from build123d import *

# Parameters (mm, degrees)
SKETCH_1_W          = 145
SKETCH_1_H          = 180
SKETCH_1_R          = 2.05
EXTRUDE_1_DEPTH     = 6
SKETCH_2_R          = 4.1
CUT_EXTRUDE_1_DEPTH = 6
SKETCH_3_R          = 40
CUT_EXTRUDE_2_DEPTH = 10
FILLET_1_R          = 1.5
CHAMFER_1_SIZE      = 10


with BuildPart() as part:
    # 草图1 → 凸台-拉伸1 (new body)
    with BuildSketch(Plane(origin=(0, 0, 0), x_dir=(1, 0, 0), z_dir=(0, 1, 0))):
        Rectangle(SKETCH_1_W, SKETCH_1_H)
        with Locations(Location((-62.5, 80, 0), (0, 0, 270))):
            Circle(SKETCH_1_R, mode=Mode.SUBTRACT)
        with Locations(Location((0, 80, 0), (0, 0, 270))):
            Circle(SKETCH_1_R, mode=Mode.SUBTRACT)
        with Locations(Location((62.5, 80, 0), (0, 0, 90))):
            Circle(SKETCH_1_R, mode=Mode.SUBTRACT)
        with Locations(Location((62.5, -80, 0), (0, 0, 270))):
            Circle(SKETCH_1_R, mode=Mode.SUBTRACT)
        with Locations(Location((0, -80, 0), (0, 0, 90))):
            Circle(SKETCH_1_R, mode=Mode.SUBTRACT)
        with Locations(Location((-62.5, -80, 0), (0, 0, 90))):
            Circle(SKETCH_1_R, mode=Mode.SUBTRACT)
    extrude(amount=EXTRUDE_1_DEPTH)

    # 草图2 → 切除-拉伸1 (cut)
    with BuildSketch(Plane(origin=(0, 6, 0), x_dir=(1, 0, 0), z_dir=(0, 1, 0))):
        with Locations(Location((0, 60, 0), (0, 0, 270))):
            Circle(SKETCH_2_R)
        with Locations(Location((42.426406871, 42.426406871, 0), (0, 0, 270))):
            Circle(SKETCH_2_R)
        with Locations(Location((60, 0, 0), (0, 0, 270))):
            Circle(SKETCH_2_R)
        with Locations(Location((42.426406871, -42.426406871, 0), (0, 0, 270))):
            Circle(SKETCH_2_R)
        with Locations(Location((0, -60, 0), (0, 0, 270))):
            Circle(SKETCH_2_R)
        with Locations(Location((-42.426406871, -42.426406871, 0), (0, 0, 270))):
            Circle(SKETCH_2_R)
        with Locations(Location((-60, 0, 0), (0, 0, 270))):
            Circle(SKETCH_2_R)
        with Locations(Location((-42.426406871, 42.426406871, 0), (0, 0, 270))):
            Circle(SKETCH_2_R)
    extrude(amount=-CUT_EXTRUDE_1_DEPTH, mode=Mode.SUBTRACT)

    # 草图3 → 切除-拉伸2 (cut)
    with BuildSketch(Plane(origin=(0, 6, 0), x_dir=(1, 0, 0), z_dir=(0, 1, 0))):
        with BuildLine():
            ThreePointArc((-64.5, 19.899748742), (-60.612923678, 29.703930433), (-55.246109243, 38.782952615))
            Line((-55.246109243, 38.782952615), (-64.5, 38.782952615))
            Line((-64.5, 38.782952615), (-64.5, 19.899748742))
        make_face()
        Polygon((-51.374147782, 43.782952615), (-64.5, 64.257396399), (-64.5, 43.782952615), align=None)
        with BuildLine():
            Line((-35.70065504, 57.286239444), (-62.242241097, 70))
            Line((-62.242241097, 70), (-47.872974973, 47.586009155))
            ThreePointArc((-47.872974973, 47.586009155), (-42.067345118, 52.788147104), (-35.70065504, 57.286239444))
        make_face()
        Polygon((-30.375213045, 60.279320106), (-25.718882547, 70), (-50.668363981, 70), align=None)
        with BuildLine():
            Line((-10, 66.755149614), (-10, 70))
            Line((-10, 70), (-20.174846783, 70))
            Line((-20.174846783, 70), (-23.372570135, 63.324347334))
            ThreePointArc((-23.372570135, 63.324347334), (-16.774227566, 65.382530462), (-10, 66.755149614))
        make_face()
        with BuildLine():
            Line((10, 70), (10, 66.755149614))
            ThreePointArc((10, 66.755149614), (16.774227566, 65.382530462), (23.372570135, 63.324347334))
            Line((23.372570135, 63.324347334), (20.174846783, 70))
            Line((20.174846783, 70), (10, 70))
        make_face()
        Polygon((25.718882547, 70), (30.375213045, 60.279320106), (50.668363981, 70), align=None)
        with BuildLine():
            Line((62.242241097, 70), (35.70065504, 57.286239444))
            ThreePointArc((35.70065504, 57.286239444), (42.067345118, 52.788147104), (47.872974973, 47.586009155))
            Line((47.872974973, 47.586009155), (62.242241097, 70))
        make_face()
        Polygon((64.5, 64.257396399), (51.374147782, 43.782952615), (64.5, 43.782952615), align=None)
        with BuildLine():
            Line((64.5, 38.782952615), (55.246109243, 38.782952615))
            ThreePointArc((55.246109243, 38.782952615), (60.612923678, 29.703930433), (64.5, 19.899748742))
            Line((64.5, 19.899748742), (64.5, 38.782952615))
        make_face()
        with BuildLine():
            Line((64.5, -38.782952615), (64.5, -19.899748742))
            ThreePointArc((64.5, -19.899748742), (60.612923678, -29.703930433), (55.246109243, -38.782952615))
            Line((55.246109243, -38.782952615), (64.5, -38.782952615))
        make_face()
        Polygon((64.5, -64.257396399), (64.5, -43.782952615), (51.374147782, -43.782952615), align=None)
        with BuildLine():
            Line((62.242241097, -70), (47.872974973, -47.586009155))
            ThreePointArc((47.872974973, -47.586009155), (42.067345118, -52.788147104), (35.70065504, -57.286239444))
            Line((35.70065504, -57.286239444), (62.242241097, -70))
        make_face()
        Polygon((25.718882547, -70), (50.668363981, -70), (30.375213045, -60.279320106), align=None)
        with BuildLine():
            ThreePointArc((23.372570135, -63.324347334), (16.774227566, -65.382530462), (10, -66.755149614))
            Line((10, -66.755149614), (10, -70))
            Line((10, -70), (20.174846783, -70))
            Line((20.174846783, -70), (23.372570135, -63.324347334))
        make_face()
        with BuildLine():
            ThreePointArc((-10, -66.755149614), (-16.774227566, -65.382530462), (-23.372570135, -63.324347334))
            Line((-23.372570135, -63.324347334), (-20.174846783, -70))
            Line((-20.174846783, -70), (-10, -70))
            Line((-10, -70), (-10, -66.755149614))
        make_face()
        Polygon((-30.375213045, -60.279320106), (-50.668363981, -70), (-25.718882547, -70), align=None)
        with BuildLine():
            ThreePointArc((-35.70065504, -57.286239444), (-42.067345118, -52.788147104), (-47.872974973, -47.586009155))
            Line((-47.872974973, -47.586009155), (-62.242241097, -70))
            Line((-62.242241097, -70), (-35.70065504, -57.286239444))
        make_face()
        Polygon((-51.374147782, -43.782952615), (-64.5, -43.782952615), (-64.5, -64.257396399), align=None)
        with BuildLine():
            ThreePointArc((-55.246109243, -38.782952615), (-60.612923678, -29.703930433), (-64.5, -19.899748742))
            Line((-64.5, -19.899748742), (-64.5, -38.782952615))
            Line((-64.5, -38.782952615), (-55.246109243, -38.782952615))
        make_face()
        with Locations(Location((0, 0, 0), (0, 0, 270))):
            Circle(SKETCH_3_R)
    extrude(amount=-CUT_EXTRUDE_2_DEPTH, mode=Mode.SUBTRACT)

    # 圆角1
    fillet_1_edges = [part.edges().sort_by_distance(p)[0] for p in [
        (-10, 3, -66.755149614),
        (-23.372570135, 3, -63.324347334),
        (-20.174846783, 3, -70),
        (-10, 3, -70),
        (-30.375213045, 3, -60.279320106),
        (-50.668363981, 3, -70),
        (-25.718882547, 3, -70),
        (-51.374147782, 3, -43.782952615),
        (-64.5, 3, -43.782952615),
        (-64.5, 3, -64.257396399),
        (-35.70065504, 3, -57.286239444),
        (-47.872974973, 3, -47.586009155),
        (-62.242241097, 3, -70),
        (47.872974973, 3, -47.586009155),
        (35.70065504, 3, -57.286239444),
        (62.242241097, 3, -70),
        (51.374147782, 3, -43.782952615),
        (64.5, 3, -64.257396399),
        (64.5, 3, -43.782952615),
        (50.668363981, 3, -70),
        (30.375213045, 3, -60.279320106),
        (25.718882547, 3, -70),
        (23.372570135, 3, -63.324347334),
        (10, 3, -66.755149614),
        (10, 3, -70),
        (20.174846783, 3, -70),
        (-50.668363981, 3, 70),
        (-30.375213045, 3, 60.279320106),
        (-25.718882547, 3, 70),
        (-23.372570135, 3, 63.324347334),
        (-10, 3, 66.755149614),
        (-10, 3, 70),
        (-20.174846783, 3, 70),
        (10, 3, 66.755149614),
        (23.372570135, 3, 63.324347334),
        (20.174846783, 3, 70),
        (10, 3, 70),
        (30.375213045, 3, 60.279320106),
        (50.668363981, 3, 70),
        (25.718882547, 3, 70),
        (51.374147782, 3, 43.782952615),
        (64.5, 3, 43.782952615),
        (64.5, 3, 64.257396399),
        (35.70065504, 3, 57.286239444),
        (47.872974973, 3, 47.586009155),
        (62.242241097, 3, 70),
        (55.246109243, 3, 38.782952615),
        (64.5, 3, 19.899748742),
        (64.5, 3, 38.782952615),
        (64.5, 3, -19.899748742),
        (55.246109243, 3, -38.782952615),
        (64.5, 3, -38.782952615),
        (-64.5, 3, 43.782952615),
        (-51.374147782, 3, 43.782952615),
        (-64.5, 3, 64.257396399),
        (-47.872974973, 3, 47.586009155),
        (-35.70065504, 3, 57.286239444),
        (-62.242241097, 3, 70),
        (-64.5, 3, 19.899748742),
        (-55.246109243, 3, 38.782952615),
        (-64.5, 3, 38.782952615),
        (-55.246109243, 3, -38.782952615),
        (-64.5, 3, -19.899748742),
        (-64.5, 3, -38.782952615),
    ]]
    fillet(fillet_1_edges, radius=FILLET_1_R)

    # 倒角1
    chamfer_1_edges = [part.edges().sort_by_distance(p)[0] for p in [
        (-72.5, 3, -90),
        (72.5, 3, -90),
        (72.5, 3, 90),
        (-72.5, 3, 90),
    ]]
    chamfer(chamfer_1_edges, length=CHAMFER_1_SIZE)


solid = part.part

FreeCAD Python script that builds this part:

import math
import FreeCAD as App
import Part
import Sketcher
Q = App.Units.Quantity


def edges_at(feature, points):
    """Names of the edges that pass closest to the given points."""
    edges = feature.Shape.Edges
    near = lambda p: min(range(len(edges)), key=lambda i: edges[i].distToShape(Part.Vertex(*p))[0])
    return sorted({f"Edge{near(p) + 1}" for p in points})


def add_polygon(sketch, points):
    """Adds a closed chain of lines whose ends are joined by coincident constraints."""
    first, n = sketch.GeometryCount, len(points)
    for a, b in zip(points, points[1:] + points[:1]):
        sketch.addGeometry(Part.LineSegment(App.Vector(*a, 0), App.Vector(*b, 0)), False)
    for i in range(n):
        sketch.addConstraint(Sketcher.Constraint("Coincident", first + i, 2, first + (i + 1) % n, 1))

doc = App.newDocument("Part")
body = doc.addObject("PartDesign::Body", "Body")

sketch1 = body.newObject("Sketcher::SketchObject", "Sketch")
sketch1.AttachmentSupport = (doc.getObject("XZ_Plane"), [""])
sketch1.MapMode = "FlatFace"
add_polygon(sketch1, [(-72.5, -90), (-72.5, 90), (72.5, 90), (72.5, -90)])
sketch1.addGeometry(Part.Circle(App.Vector(-62.5, 80, 0), App.Vector(0, 0, 1), 2), False)
sketch1.addGeometry(Part.Circle(App.Vector(0, 80, 0), App.Vector(0, 0, 1), 2), False)
sketch1.addGeometry(Part.Circle(App.Vector(62.5, 80, 0), App.Vector(0, 0, 1), 2), False)
sketch1.addGeometry(Part.Circle(App.Vector(-62.5, -80, 0), App.Vector(0, 0, 1), 2), False)
sketch1.addGeometry(Part.Circle(App.Vector(0, -80, 0), App.Vector(0, 0, 1), 2), False)
sketch1.addGeometry(Part.Circle(App.Vector(62.5, -80, 0), App.Vector(0, 0, 1), 2), False)
sketch1.addConstraint([
    Sketcher.Constraint("Vertical", 0),
    Sketcher.Constraint("Horizontal", 1),
    Sketcher.Constraint("Vertical", 2),
    Sketcher.Constraint("Horizontal", 3),
    Sketcher.Constraint("Equal", 4, 5),
    Sketcher.Constraint("Equal", 5, 6),
    Sketcher.Constraint("Equal", 6, 7),
    Sketcher.Constraint("Equal", 7, 8),
    Sketcher.Constraint("Equal", 8, 9),
    Sketcher.Constraint("Symmetric", 6, 3, 7, 3, -1, 1),
    Sketcher.Constraint("Symmetric", 5, 3, 8, 3, -1, 1),
    Sketcher.Constraint("Symmetric", 4, 3, 9, 3, -1, 1),
    Sketcher.Constraint("Symmetric", 0, 2, 2, 2, -1, 1),
    Sketcher.Constraint("Symmetric", 4, 3, 6, 3, -2),
    Sketcher.Constraint("PointOnObject", 5, 3, -2),
    Sketcher.Constraint("Horizontal", 4, 3, 5, 3),
    Sketcher.Constraint("Diameter", 4, Q("4.1 mm")),
    Sketcher.Constraint("DistanceX", 1, 1, 1, 2, Q("145 mm")),
    Sketcher.Constraint("DistanceY", 0, 1, 0, 2, Q("180 mm")),
    Sketcher.Constraint("DistanceY", -1, 1, 4, 3, Q("80 mm")),
    Sketcher.Constraint("DistanceX", 4, 3, 6, 3, Q("125 mm")),
])
pad1 = body.newObject("PartDesign::Pad", "Pad")
pad1.Profile = sketch1
pad1.Length = 6
pad1.Reversed = True

sketch2 = body.newObject("Sketcher::SketchObject", "Sketch001")
sketch2.AttachmentSupport = (doc.getObject("XZ_Plane"), [""])
sketch2.MapMode = "FlatFace"
sketch2.AttachmentOffset = App.Placement(App.Vector(0, 0, -6), App.Rotation())
sketch2.addGeometry([
    Part.Circle(App.Vector(0, -60, 0), App.Vector(0, 0, 1), 4.1),
    Part.Circle(App.Vector(42.4, -42.4, 0), App.Vector(0, 0, 1), 4.1),
    Part.Circle(App.Vector(60, 0, 0), App.Vector(0, 0, 1), 4.1),
    Part.Circle(App.Vector(42.4, 42.4, 0), App.Vector(0, 0, 1), 4.1),
    Part.Circle(App.Vector(0, 60, 0), App.Vector(0, 0, 1), 4.1),
    Part.Circle(App.Vector(-42.4, 42.4, 0), App.Vector(0, 0, 1), 4.1),
    Part.Circle(App.Vector(-60, 0, 0), App.Vector(0, 0, 1), 4.1),
    Part.Circle(App.Vector(-42.4, -42.4, 0), App.Vector(0, 0, 1), 4.1),
], False)
sketch2.addConstraint([
    Sketcher.Constraint("Equal", 0, 1),
    Sketcher.Constraint("Equal", 1, 2),
    Sketcher.Constraint("Equal", 2, 3),
    Sketcher.Constraint("Equal", 3, 4),
    Sketcher.Constraint("Equal", 4, 5),
    Sketcher.Constraint("Equal", 5, 6),
    Sketcher.Constraint("Equal", 6, 7),
    Sketcher.Constraint("Symmetric", 0, 3, 4, 3, -1, 1),
    Sketcher.Constraint("Symmetric", 1, 3, 5, 3, -1, 1),
    Sketcher.Constraint("Symmetric", 2, 3, 6, 3, -1, 1),
    Sketcher.Constraint("Symmetric", 3, 3, 7, 3, -1, 1),
    Sketcher.Constraint("Symmetric", 3, 3, 5, 3, -2),
    Sketcher.Constraint("PointOnObject", 0, 3, -2),
    Sketcher.Constraint("PointOnObject", 2, 3, -1),
    Sketcher.Constraint("Diameter", 0, Q("8.2 mm")),
    Sketcher.Constraint("DistanceY", 0, 3, -1, 1, Q("60 mm")),
    Sketcher.Constraint("DistanceX", -1, 1, 2, 3, Q("60 mm")),
    Sketcher.Constraint("DistanceX", -1, 1, 1, 3, Q("42.426407 mm")),
    Sketcher.Constraint("DistanceY", 1, 3, -1, 1, Q("42.426407 mm")),
])
pocket1 = body.newObject("PartDesign::Pocket", "Pocket")
pocket1.Profile = sketch2
pocket1.Length = 6
pocket1.Reversed = True

sketch3 = body.newObject("Sketcher::SketchObject", "Sketch002")
sketch3.AttachmentSupport = (doc.getObject("XZ_Plane"), [""])
sketch3.MapMode = "FlatFace"
sketch3.AttachmentOffset = App.Placement(App.Vector(0, 0, -6), App.Rotation())
sketch3.addGeometry(Part.ArcOfCircle(Part.Circle(App.Vector(0, 0, 0), App.Vector(0, 0, 1), 67.5), math.radians(-162.85), math.radians(-144.93)), False)
sketch3.addGeometry(Part.LineSegment(App.Vector(-55.2, -38.8, 0), App.Vector(-64.5, -38.8, 0)), False)
sketch3.addGeometry(Part.LineSegment(App.Vector(-64.5, -38.8, 0), App.Vector(-64.5, -19.9, 0)), False)
add_polygon(sketch3, [(-51.4, -43.8), (-64.5, -64.3), (-64.5, -43.8)])
sketch3.addGeometry(Part.LineSegment(App.Vector(-35.7, -57.3, 0), App.Vector(-62.2, -70, 0)), False)
sketch3.addGeometry(Part.LineSegment(App.Vector(-62.2, -70, 0), App.Vector(-47.9, -47.6, 0)), False)
sketch3.addGeometry(Part.ArcOfCircle(Part.Circle(App.Vector(0, 0, 0), App.Vector(0, 0, 1), 67.5), math.radians(-135.17), math.radians(-121.93)), False)
add_polygon(sketch3, [(-30.4, -60.3), (-25.7, -70), (-50.7, -70)])
sketch3.addGeometry(Part.LineSegment(App.Vector(-10, -66.8, 0), App.Vector(-10, -70, 0)), False)
sketch3.addGeometry(Part.LineSegment(App.Vector(-10, -70, 0), App.Vector(-20.2, -70, 0)), False)
sketch3.addGeometry(Part.LineSegment(App.Vector(-20.2, -70, 0), App.Vector(-23.4, -63.3, 0)), False)
sketch3.addGeometry(Part.ArcOfCircle(Part.Circle(App.Vector(0, 0, 0), App.Vector(0, 0, 1), 67.5), math.radians(-110.26), math.radians(-98.52)), False)
sketch3.addGeometry(Part.LineSegment(App.Vector(10, -70, 0), App.Vector(10, -66.8, 0)), False)
sketch3.addGeometry(Part.ArcOfCircle(Part.Circle(App.Vector(0, 0, 0), App.Vector(0, 0, 1), 67.5), math.radians(-81.48), math.radians(-69.74)), False)
sketch3.addGeometry(Part.LineSegment(App.Vector(23.4, -63.3, 0), App.Vector(20.2, -70, 0)), False)
sketch3.addGeometry(Part.LineSegment(App.Vector(20.2, -70, 0), App.Vector(10, -70, 0)), False)
add_polygon(sketch3, [(25.7, -70), (30.4, -60.3), (50.7, -70)])
sketch3.addGeometry(Part.LineSegment(App.Vector(62.2, -70, 0), App.Vector(35.7, -57.3, 0)), False)
sketch3.addGeometry(Part.ArcOfCircle(Part.Circle(App.Vector(0, 0, 0), App.Vector(0, 0, 1), 67.5), math.radians(-58.07), math.radians(-44.83)), False)
sketch3.addGeometry(Part.LineSegment(App.Vector(47.9, -47.6, 0), App.Vector(62.2, -70, 0)), False)
add_polygon(sketch3, [(64.5, -64.3), (51.4, -43.8), (64.5, -43.8)])
sketch3.addGeometry(Part.LineSegment(App.Vector(64.5, -38.8, 0), App.Vector(55.2, -38.8, 0)), False)
sketch3.addGeometry(Part.ArcOfCircle(Part.Circle(App.Vector(0, 0, 0), App.Vector(0, 0, 1), 67.5), math.radians(-35.07), math.radians(-17.15)), False)
sketch3.addGeometry(Part.LineSegment(App.Vector(64.5, -19.9, 0), App.Vector(64.5, -38.8, 0)), False)
sketch3.addGeometry(Part.LineSegment(App.Vector(64.5, 38.8, 0), App.Vector(64.5, 19.9, 0)), False)
sketch3.addGeometry(Part.ArcOfCircle(Part.Circle(App.Vector(0, 0, 0), App.Vector(0, 0, 1), 67.5), math.radians(17.15), math.radians(35.07)), False)
sketch3.addGeometry(Part.LineSegment(App.Vector(55.2, 38.8, 0), App.Vector(64.5, 38.8, 0)), False)
add_polygon(sketch3, [(64.5, 64.3), (64.5, 43.8), (51.4, 43.8)])
sketch3.addGeometry(Part.LineSegment(App.Vector(62.2, 70, 0), App.Vector(47.9, 47.6, 0)), False)
sketch3.addGeometry(Part.ArcOfCircle(Part.Circle(App.Vector(0, 0, 0), App.Vector(0, 0, 1), 67.5), math.radians(44.83), math.radians(58.07)), False)
sketch3.addGeometry(Part.LineSegment(App.Vector(35.7, 57.3, 0), App.Vector(62.2, 70, 0)), False)
add_polygon(sketch3, [(25.7, 70), (50.7, 70), (30.4, 60.3)])
sketch3.addGeometry(Part.ArcOfCircle(Part.Circle(App.Vector(0, 0, 0), App.Vector(0, 0, 1), 67.5), math.radians(69.74), math.radians(81.48)), False)
sketch3.addGeometry(Part.LineSegment(App.Vector(10, 66.8, 0), App.Vector(10, 70, 0)), False)
sketch3.addGeometry(Part.LineSegment(App.Vector(10, 70, 0), App.Vector(20.2, 70, 0)), False)
sketch3.addGeometry(Part.LineSegment(App.Vector(20.2, 70, 0), App.Vector(23.4, 63.3, 0)), False)
sketch3.addGeometry(Part.ArcOfCircle(Part.Circle(App.Vector(0, 0, 0), App.Vector(0, 0, 1), 67.5), math.radians(98.52), math.radians(110.26)), False)
sketch3.addGeometry(Part.LineSegment(App.Vector(-23.4, 63.3, 0), App.Vector(-20.2, 70, 0)), False)
sketch3.addGeometry(Part.LineSegment(App.Vector(-20.2, 70, 0), App.Vector(-10, 70, 0)), False)
sketch3.addGeometry(Part.LineSegment(App.Vector(-10, 70, 0), App.Vector(-10, 66.8, 0)), False)
add_polygon(sketch3, [(-30.4, 60.3), (-50.7, 70), (-25.7, 70)])
sketch3.addGeometry(Part.ArcOfCircle(Part.Circle(App.Vector(0, 0, 0), App.Vector(0, 0, 1), 67.5), math.radians(121.93), math.radians(135.17)), False)
sketch3.addGeometry(Part.LineSegment(App.Vector(-47.9, 47.6, 0), App.Vector(-62.2, 70, 0)), False)
sketch3.addGeometry(Part.LineSegment(App.Vector(-62.2, 70, 0), App.Vector(-35.7, 57.3, 0)), False)
add_polygon(sketch3, [(-51.4, 43.8), (-64.5, 43.8), (-64.5, 64.3)])
sketch3.addGeometry(Part.ArcOfCircle(Part.Circle(App.Vector(0, 0, 0), App.Vector(0, 0, 1), 67.5), math.radians(144.93), math.radians(162.85)), False)
sketch3.addGeometry(Part.LineSegment(App.Vector(-64.5, 19.9, 0), App.Vector(-64.5, 38.8, 0)), False)
sketch3.addGeometry(Part.LineSegment(App.Vector(-64.5, 38.8, 0), App.Vector(-55.2, 38.8, 0)), False)
sketch3.addGeometry(Part.Circle(App.Vector(0, 0, 0), App.Vector(0, 0, 1), 40), False)
sketch3.addConstraint([
    Sketcher.Constraint("Coincident", 0, 2, 1, 1),
    Sketcher.Constraint("Coincident", 1, 2, 2, 1),
    Sketcher.Constraint("Coincident", 2, 2, 0, 1),
    Sketcher.Constraint("Coincident", 6, 2, 7, 1),
    Sketcher.Constraint("Coincident", 7, 2, 8, 1),
    Sketcher.Constraint("Coincident", 8, 2, 6, 1),
    Sketcher.Constraint("Coincident", 12, 2, 13, 1),
    Sketcher.Constraint("Coincident", 13, 2, 14, 1),
    Sketcher.Constraint("Coincident", 14, 2, 15, 1),
    Sketcher.Constraint("Coincident", 15, 2, 12, 1),
    Sketcher.Constraint("Coincident", 16, 2, 17, 1),
    Sketcher.Constraint("Coincident", 17, 2, 18, 1),
    Sketcher.Constraint("Coincident", 18, 2, 19, 1),
    Sketcher.Constraint("Coincident", 19, 2, 16, 1),
    Sketcher.Constraint("Coincident", 23, 2, 24, 1),
    Sketcher.Constraint("Coincident", 24, 2, 25, 1),
    Sketcher.Constraint("Coincident", 25, 2, 23, 1),
    Sketcher.Constraint("Coincident", 29, 2, 30, 1),
    Sketcher.Constraint("Coincident", 30, 2, 31, 1),
    Sketcher.Constraint("Coincident", 31, 2, 29, 1),
    Sketcher.Constraint("Coincident", 32, 2, 33, 1),
    Sketcher.Constraint("Coincident", 33, 2, 34, 1),
    Sketcher.Constraint("Coincident", 34, 2, 32, 1),
    Sketcher.Constraint("Coincident", 38, 2, 39, 1),
    Sketcher.Constraint("Coincident", 39, 2, 40, 1),
    Sketcher.Constraint("Coincident", 40, 2, 38, 1),
    Sketcher.Constraint("Coincident", 44, 2, 45, 1),
    Sketcher.Constraint("Coincident", 45, 2, 46, 1),
    Sketcher.Constraint("Coincident", 46, 2, 47, 1),
    Sketcher.Constraint("Coincident", 47, 2, 44, 1),
    Sketcher.Constraint("Coincident", 48, 2, 49, 1),
    Sketcher.Constraint("Coincident", 49, 2, 50, 1),
    Sketcher.Constraint("Coincident", 50, 2, 51, 1),
    Sketcher.Constraint("Coincident", 51, 2, 48, 1),
    Sketcher.Constraint("Coincident", 55, 2, 56, 1),
    Sketcher.Constraint("Coincident", 56, 2, 57, 1),
    Sketcher.Constraint("Coincident", 57, 2, 55, 1),
    Sketcher.Constraint("Coincident", 61, 2, 62, 1),
    Sketcher.Constraint("Coincident", 62, 2, 63, 1),
    Sketcher.Constraint("Coincident", 63, 2, 61, 1),
    Sketcher.Constraint("Horizontal", 1),
    Sketcher.Constraint("Vertical", 2),
    Sketcher.Constraint("Vertical", 4),
    Sketcher.Constraint("Horizontal", 5),
    Sketcher.Constraint("Horizontal", 10),
    Sketcher.Constraint("Vertical", 12),
    Sketcher.Constraint("Horizontal", 13),
    Sketcher.Constraint("Vertical", 16),
    Sketcher.Constraint("Horizontal", 19),
    Sketcher.Constraint("Horizontal", 22),
    Sketcher.Constraint("Horizontal", 27),
    Sketcher.Constraint("Vertical", 28),
    Sketcher.Constraint("Horizontal", 29),
    Sketcher.Constraint("Vertical", 31),
    Sketcher.Constraint("Vertical", 32),
    Sketcher.Constraint("Horizontal", 34),
    Sketcher.Constraint("Vertical", 35),
    Sketcher.Constraint("Horizontal", 36),
    Sketcher.Constraint("Horizontal", 41),
    Sketcher.Constraint("Vertical", 45),
    Sketcher.Constraint("Horizontal", 46),
    Sketcher.Constraint("Horizontal", 50),
    Sketcher.Constraint("Vertical", 51),
    Sketcher.Constraint("Horizontal", 53),
    Sketcher.Constraint("Horizontal", 58),
    Sketcher.Constraint("Vertical", 59),
    Sketcher.Constraint("Vertical", 62),
    Sketcher.Constraint("Horizontal", 63),
    Sketcher.Constraint("Coincident", 0, 3, -1, 1),
    Sketcher.Constraint("Coincident", 8, 3, -1, 1),
    Sketcher.Constraint("Coincident", 15, 3, -1, 1),
    Sketcher.Constraint("Coincident", 17, 3, -1, 1),
    Sketcher.Constraint("Coincident", 24, 3, -1, 1),
    Sketcher.Constraint("Coincident", 30, 3, -1, 1),
    Sketcher.Constraint("Coincident", 33, 3, -1, 1),
    Sketcher.Constraint("Coincident", 39, 3, -1, 1),
    Sketcher.Constraint("Coincident", 44, 3, -1, 1),
    Sketcher.Constraint("Coincident", 48, 3, -1, 1),
    Sketcher.Constraint("Coincident", 55, 3, -1, 1),
    Sketcher.Constraint("Coincident", 61, 3, -1, 1),
    Sketcher.Constraint("Coincident", 64, 3, -1, 1),
    Sketcher.Constraint("Equal", 0, 8),
    Sketcher.Constraint("Equal", 8, 15),
    Sketcher.Constraint("Equal", 15, 17),
    Sketcher.Constraint("Equal", 17, 24),
    Sketcher.Constraint("Equal", 24, 30),
    Sketcher.Constraint("Equal", 30, 33),
    Sketcher.Constraint("Equal", 33, 39),
    Sketcher.Constraint("Equal", 39, 44),
    Sketcher.Constraint("Equal", 44, 48),
    Sketcher.Constraint("Equal", 48, 55),
    Sketcher.Constraint("Equal", 55, 61),
    Sketcher.Constraint("Symmetric", 1, 2, 34, 2, -1, 1),
    Sketcher.Constraint("Symmetric", 4, 2, 35, 2, -1, 1),
    Sketcher.Constraint("Symmetric", 6, 2, 40, 2, -1, 1),
    Sketcher.Constraint("Symmetric", 10, 2, 41, 2, -1, 1),
    Sketcher.Constraint("Symmetric", 11, 2, 42, 2, -1, 1),
    Sketcher.Constraint("Symmetric", 12, 2, 45, 2, -1, 1),
    Sketcher.Constraint("Symmetric", 18, 2, 49, 2, -1, 1),
    Sketcher.Constraint("Symmetric", 21, 2, 52, 2, -1, 1),
    Sketcher.Constraint("Symmetric", 20, 2, 54, 2, -1, 1),
    Sketcher.Constraint("Symmetric", 25, 2, 56, 2, -1, 1),
    Sketcher.Constraint("Symmetric", 27, 2, 58, 2, -1, 1),
    Sketcher.Constraint("Symmetric", 31, 2, 62, 2, -1, 1),
    Sketcher.Constraint("Symmetric", 13, 2, 18, 2, -2),
    Sketcher.Constraint("Symmetric", 11, 2, 20, 2, -2),
    Sketcher.Constraint("Symmetric", 10, 2, 21, 2, -2),
    Sketcher.Constraint("Symmetric", 6, 2, 25, 2, -2),
    Sketcher.Constraint("Symmetric", 5, 2, 26, 2, -2),
    Sketcher.Constraint("Symmetric", 3, 2, 28, 2, -2),
    Sketcher.Constraint("Symmetric", 1, 2, 31, 2, -2),
    Sketcher.Constraint("Parallel", 3, 7),
    Sketcher.Constraint("Perpendicular", 6, 9),
    Sketcher.Constraint("Perpendicular", 9, 11),
    Sketcher.Constraint("Perpendicular", 11, 14),
    Sketcher.Constraint("Parallel", 18, 20),
    Sketcher.Constraint("Perpendicular", 20, 21),
    Sketcher.Constraint("Parallel", 21, 23),
    Sketcher.Constraint("Parallel", 25, 26),
    Sketcher.Constraint("Parallel", 7, 37),
    Sketcher.Constraint("Parallel", 37, 38),
    Sketcher.Constraint("Perpendicular", 14, 40),
    Sketcher.Constraint("Perpendicular", 42, 43),
    Sketcher.Constraint("Parallel", 43, 47),
    Sketcher.Constraint("Perpendicular", 23, 49),
    Sketcher.Constraint("Perpendicular", 52, 54),
    Sketcher.Constraint("Parallel", 26, 56),
    Sketcher.Constraint("Perpendicular", 54, 57),
    Sketcher.Constraint("Parallel", 56, 60),
    Sketcher.Constraint("Horizontal", 6, 2, 9, 2),
    Sketcher.Constraint("Horizontal", 10, 2, 12, 2),
    Sketcher.Constraint("Horizontal", 15, 2, 16, 2),
    Sketcher.Constraint("Horizontal", 47, 2, 48, 2),
    Sketcher.Constraint("Horizontal", 44, 2, 51, 2),
    Sketcher.Constraint("Horizontal", 37, 2, 59, 2),
    Sketcher.Constraint("Vertical", 2, 2, 3, 2),
    Sketcher.Constraint("Vertical", 26, 2, 36, 2),
    Sketcher.Constraint("Diameter", 64, Q("80 mm")),
    Sketcher.Constraint("Radius", 0, Q("67.5 mm")),
    Sketcher.Constraint("DistanceY", 6, 2, -1, 1, Q("70 mm")),
    Sketcher.Constraint("DistanceX", 12, 2, -1, 1, Q("10 mm")),
    Sketcher.Constraint("DistanceX", 1, 2, -1, 1, Q("64.5 mm")),
    Sketcher.Constraint("Distance", 6, Q("29.4295 mm")),
    Sketcher.Constraint("DistanceX", 1, 2, 1, 1, Q("9.253891 mm")),
    Sketcher.Constraint("DistanceX", 10, 2, 10, 1, Q("24.949481 mm")),
    Sketcher.Constraint("Distance", 9, Q("10.778359 mm")),
    Sketcher.Constraint("Distance", 14, Q("7.402011 mm")),
    Sketcher.Constraint("DistanceX", 5, 1, 5, 2, Q("13.125852 mm")),
    Sketcher.Constraint("DistanceY", 4, 1, 4, 2, Q("20.474444 mm")),
    Sketcher.Constraint("DistanceY", 3, 2, -1, 1, Q("64.257396 mm")),
    Sketcher.Constraint("DistanceX", 9, 2, -1, 1, Q("25.718883 mm")),
])
pocket2 = body.newObject("PartDesign::Pocket", "Pocket001")
pocket2.Profile = sketch3
pocket2.Length = 10
pocket2.Reversed = True
doc.recompute()

fillet = body.newObject("PartDesign::Fillet", "Fillet")
fillet.Base = (pocket2, edges_at(pocket2, [
    (-10, 3, -66.755),
    (-23.373, 3, -63.324),
    (-20.175, 3, -70),
    (-10, 3, -70),
    (-30.375, 3, -60.279),
    (-50.668, 3, -70),
    (-25.719, 3, -70),
    (-51.374, 3, -43.783),
    (-64.5, 3, -43.783),
    (-64.5, 3, -64.257),
    (-35.701, 3, -57.286),
    (-47.873, 3, -47.586),
    (-62.242, 3, -70),
    (47.873, 3, -47.586),
    (35.701, 3, -57.286),
    (62.242, 3, -70),
    (51.374, 3, -43.783),
    (64.5, 3, -64.257),
    (64.5, 3, -43.783),
    (50.668, 3, -70),
    (30.375, 3, -60.279),
    (25.719, 3, -70),
    (23.373, 3, -63.324),
    (10, 3, -66.755),
    (10, 3, -70),
    (20.175, 3, -70),
    (-50.668, 3, 70),
    (-30.375, 3, 60.279),
    (-25.719, 3, 70),
    (-23.373, 3, 63.324),
    (-10, 3, 66.755),
    (-10, 3, 70),
    (-20.175, 3, 70),
    (10, 3, 66.755),
    (23.373, 3, 63.324),
    (20.175, 3, 70),
    (10, 3, 70),
    (30.375, 3, 60.279),
    (50.668, 3, 70),
    (25.719, 3, 70),
    (51.374, 3, 43.783),
    (64.5, 3, 43.783),
    (64.5, 3, 64.257),
    (35.701, 3, 57.286),
    (47.873, 3, 47.586),
    (62.242, 3, 70),
    (55.246, 3, 38.783),
    (64.5, 3, 19.9),
    (64.5, 3, 38.783),
    (64.5, 3, -19.9),
    (55.246, 3, -38.783),
    (64.5, 3, -38.783),
    (-64.5, 3, 43.783),
    (-51.374, 3, 43.783),
    (-64.5, 3, 64.257),
    (-47.873, 3, 47.586),
    (-35.701, 3, 57.286),
    (-62.242, 3, 70),
    (-64.5, 3, 19.9),
    (-55.246, 3, 38.783),
    (-64.5, 3, 38.783),
    (-55.246, 3, -38.783),
    (-64.5, 3, -19.9),
    (-64.5, 3, -38.783),
]))
fillet.Radius = 1.5
doc.recompute()

chamfer = body.newObject("PartDesign::Chamfer", "Chamfer")
chamfer.Base = (fillet, edges_at(fillet, [
    (-72.5, 3, -90),
    (72.5, 3, -90),
    (72.5, 3, 90),
    (-72.5, 3, 90),
]))
chamfer.Size = 10

doc.recompute()
